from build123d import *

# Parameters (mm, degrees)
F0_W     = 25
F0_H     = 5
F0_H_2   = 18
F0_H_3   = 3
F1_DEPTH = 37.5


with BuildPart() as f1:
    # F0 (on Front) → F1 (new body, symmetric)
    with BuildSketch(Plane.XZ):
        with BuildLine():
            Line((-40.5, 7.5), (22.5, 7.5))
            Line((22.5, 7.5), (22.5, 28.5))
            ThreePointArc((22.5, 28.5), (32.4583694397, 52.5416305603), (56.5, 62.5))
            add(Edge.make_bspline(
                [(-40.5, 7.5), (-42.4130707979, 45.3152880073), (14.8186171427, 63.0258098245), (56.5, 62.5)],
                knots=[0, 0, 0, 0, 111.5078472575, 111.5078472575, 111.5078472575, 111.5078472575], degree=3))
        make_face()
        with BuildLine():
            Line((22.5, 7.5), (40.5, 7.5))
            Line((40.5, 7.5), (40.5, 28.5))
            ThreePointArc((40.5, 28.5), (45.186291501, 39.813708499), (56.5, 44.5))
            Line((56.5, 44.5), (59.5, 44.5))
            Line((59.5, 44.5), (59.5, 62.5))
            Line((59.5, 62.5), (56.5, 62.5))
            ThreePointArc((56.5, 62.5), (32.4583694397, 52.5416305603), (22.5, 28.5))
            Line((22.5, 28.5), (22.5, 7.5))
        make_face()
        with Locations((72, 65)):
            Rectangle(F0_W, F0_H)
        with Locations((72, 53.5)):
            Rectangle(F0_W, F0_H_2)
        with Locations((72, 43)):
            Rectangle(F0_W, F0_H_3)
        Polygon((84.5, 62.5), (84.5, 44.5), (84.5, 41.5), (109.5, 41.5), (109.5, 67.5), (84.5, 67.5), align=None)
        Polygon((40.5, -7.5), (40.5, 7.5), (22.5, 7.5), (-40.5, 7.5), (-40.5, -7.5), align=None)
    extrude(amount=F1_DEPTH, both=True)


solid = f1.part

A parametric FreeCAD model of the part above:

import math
import FreeCAD as App
import Part
import Sketcher
from FreeCAD import Vector

doc = App.newDocument("Part")
body = doc.addObject("PartDesign::Body", "Body")

sketch1 = body.newObject("Sketcher::SketchObject", "Sketch")
sketch1.AttachmentSupport = (doc.getObject("XZ_Plane"), [""])
sketch1.MapMode = "FlatFace"
sketch1.addGeometry([
    Part.ArcOfCircle(Part.Circle(Vector(56.5, 28.5, 0), Vector(0, 0, 1), 16), math.radians(90), math.radians(180)),
    Part.LineSegment(Vector(56.5, 44.5, 0), Vector(59.5, 44.5, 0)),
    Part.LineSegment(Vector(59.5, 44.5, 0), Vector(59.5, 41.5, 0)),
    Part.LineSegment(Vector(59.5, 41.5, 0), Vector(109.5, 41.5, 0)),
    Part.LineSegment(Vector(109.5, 41.5, 0), Vector(109.5, 67.5, 0)),
    Part.LineSegment(Vector(109.5, 67.5, 0), Vector(59.5, 67.5, 0)),
    Part.LineSegment(Vector(59.5, 67.5, 0), Vector(59.5, 62.5, 0)),
    Part.LineSegment(Vector(59.5, 62.5, 0), Vector(56.5, 62.5, 0)),
    Part.BSplineCurve([Vector(-40.5, 7.5, 0), Vector(-42.413071, 45.315288, 0), Vector(14.818617, 63.02581, 0), Vector(56.5, 62.5, 0)], [4, 4], [0, 111.507847258], False, 3, [1, 1, 1, 1], False),
    Part.LineSegment(Vector(-40.5, 7.5, 0), Vector(-40.5, -7.5, 0)),
    Part.LineSegment(Vector(-40.5, -7.5, 0), Vector(40.5, -7.5, 0)),
    Part.LineSegment(Vector(40.5, -7.5, 0), Vector(40.5, 28.5, 0)),
], False)
sketch1.addConstraint([
    Sketcher.Constraint("Block", 8),
    Sketcher.Constraint("Tangent", 0, 1, 1, 1),
    Sketcher.Constraint("Coincident", 1, 2, 2, 1),
    Sketcher.Constraint("Coincident", 2, 2, 3, 1),
    Sketcher.Constraint("Coincident", 3, 2, 4, 1),
    Sketcher.Constraint("Coincident", 4, 2, 5, 1),
    Sketcher.Constraint("Coincident", 5, 2, 6, 1),
    Sketcher.Constraint("Coincident", 6, 2, 7, 1),
    Sketcher.Constraint("Coincident", 7, 2, 8, 2),
    Sketcher.Constraint("Coincident", 8, 1, 9, 1),
    Sketcher.Constraint("Coincident", 9, 2, 10, 1),
    Sketcher.Constraint("Coincident", 10, 2, 11, 1),
    Sketcher.Constraint("Tangent", 11, 2, 0, 2),
    Sketcher.Constraint("Horizontal", 1),
    Sketcher.Constraint("Vertical", 2),
    Sketcher.Constraint("Horizontal", 3),
    Sketcher.Constraint("Vertical", 4),
    Sketcher.Constraint("Horizontal", 5),
    Sketcher.Constraint("Vertical", 6),
    Sketcher.Constraint("Horizontal", 7),
    Sketcher.Constraint("Vertical", 9),
    Sketcher.Constraint("Horizontal", 10),
    Sketcher.Constraint("Vertical", 11),
    Sketcher.Constraint("Vertical", 2, 2, 5, 2),
    Sketcher.Constraint("Vertical", 0, 1, 7, 2),
    Sketcher.Constraint("Equal", 7, 2),
    Sketcher.Constraint("Radius", 0, 16.0),
    Sketcher.Constraint("DistanceX", 1, 1, 1, 2, 3.0),
    Sketcher.Constraint("DistanceX", 3, 1, 3, 2, 50.0),
    Sketcher.Constraint("DistanceY", 4, 1, 4, 2, 26.0),
    Sketcher.Constraint("DistanceY", 6, 2, 6, 1, 5.0),
    Sketcher.Constraint("DistanceY", 9, 2, 9, 1, 15.0),
])
pad1 = body.newObject("PartDesign::Pad", "Pad")
pad1.Profile = sketch1
pad1.Length = 75
pad1.Midplane = True

doc.recompute()
